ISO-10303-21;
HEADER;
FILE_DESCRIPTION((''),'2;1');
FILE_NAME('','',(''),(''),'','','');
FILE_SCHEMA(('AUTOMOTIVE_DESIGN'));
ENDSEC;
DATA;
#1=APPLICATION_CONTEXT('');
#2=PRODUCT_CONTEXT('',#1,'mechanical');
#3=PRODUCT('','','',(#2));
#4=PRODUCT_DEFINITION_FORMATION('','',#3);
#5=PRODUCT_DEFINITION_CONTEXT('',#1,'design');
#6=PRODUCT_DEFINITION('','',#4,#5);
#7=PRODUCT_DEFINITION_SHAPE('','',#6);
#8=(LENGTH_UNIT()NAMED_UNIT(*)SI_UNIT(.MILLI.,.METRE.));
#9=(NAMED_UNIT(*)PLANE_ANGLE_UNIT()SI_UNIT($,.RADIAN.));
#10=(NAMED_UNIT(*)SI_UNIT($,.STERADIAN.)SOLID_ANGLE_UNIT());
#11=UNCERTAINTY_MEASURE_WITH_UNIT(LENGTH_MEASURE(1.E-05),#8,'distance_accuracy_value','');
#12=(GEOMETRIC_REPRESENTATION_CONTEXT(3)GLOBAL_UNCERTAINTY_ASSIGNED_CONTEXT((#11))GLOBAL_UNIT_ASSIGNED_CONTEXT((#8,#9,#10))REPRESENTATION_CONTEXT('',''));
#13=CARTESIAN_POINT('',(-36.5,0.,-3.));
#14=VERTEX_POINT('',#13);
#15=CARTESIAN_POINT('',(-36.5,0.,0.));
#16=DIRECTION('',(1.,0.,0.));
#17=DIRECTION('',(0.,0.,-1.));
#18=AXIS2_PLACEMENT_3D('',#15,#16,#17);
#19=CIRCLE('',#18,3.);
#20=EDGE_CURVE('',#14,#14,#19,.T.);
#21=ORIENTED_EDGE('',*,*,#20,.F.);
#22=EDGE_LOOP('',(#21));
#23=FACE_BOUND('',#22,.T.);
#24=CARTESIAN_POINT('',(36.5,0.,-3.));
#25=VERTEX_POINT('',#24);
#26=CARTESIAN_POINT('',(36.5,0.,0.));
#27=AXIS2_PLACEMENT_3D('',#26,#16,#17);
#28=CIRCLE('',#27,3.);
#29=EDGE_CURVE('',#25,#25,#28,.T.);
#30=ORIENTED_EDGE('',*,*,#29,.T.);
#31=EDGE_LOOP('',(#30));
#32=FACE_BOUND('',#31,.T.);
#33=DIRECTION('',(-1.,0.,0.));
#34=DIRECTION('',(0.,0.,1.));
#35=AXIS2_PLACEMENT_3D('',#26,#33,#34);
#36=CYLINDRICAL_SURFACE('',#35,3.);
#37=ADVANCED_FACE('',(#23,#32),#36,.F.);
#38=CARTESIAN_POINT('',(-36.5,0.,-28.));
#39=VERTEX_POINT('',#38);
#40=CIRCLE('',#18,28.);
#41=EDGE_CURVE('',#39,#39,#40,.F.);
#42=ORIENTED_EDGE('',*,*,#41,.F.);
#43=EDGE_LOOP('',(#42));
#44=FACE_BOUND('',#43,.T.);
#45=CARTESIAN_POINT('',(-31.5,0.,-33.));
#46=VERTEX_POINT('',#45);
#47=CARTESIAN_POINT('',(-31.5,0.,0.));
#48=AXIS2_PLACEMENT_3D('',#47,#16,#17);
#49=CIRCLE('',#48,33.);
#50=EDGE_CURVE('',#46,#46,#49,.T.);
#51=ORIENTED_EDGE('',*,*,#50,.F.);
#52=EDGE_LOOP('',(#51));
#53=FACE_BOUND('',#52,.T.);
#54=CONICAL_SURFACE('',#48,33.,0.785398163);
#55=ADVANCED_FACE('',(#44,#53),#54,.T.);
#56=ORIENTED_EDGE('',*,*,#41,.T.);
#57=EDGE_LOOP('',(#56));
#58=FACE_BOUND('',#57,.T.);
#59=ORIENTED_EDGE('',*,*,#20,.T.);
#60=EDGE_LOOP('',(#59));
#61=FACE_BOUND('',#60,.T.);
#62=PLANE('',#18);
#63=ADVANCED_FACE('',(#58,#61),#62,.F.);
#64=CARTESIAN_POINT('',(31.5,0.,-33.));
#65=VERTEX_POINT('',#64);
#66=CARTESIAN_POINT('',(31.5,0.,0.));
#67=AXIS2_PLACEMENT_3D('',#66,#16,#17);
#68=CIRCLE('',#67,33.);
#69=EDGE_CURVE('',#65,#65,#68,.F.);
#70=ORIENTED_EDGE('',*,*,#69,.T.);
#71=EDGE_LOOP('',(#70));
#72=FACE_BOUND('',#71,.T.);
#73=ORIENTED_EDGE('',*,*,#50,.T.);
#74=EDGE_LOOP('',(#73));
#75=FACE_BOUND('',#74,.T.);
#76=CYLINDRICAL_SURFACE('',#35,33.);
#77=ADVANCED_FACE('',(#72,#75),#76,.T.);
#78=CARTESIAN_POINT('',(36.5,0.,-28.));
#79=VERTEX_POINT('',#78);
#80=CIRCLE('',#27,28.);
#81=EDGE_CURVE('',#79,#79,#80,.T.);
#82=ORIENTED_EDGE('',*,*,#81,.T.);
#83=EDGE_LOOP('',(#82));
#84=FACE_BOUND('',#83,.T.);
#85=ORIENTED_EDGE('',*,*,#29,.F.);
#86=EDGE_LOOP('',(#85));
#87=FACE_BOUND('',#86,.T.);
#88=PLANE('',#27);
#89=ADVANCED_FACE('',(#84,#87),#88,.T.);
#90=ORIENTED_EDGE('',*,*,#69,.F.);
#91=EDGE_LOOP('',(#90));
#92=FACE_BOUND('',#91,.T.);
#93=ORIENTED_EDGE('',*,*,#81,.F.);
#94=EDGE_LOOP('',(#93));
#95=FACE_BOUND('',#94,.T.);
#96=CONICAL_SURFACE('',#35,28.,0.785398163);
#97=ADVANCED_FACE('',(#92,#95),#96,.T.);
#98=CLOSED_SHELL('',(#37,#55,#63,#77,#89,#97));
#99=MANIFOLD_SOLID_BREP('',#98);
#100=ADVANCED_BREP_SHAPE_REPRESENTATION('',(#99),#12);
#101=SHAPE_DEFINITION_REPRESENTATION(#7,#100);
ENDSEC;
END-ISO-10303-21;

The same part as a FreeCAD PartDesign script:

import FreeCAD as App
import Part
import Sketcher

V = App.Vector


def edges_at(feature, points):
    """Names of the edges that pass closest to the given points."""
    edges = feature.Shape.Edges
    near = lambda p: min(range(len(edges)), key=lambda i: edges[i].distToShape(Part.Vertex(*p))[0])
    return sorted({f"Edge{near(p) + 1}" for p in points})

doc = App.newDocument("Part")
params = doc.addObject("Spreadsheet::Sheet", "Params")
for row, (alias, value) in enumerate([
    ("sketch1_diameter", "66 mm"),
    ("sketch1_diameter2", "6 mm"),
    ("pad1_length", "73 mm"),
    ("chamfer_size", "5 mm"),
], start=1):
    params.set(f"A{row}", alias)
    params.set(f"B{row}", "=" + value)
    params.setAlias(f"B{row}", alias)

body = doc.addObject("PartDesign::Body", "Body")

sketch1 = body.newObject("Sketcher::SketchObject", "Sketch")
sketch1.AttachmentSupport = (doc.getObject("YZ_Plane"), [""])
sketch1.MapMode = "FlatFace"
sketch1.addGeometry(Part.Circle(V(0, 0, 0), V(0, 0, 1), 33), False)
sketch1.addGeometry(Part.Circle(V(0, 0, 0), V(0, 0, 1), 3), False)
sketch1.addConstraint(Sketcher.Constraint("Coincident", 0, 3, -1, 1))
sketch1.addConstraint(Sketcher.Constraint("Coincident", 1, 3, -1, 1))
sketch1.addConstraint(Sketcher.Constraint("Diameter", 0, 66.0))
sketch1.addConstraint(Sketcher.Constraint("Diameter", 1, 6.0))
sketch1.setExpression("Constraints[2]", "Params.sketch1_diameter")
sketch1.setExpression("Constraints[3]", "Params.sketch1_diameter2")
pad1 = body.newObject("PartDesign::Pad", "Pad")
pad1.Profile = sketch1
pad1.setExpression("Length", "Params.pad1_length")
pad1.Midplane = True
doc.recompute()

chamfer = body.newObject("PartDesign::Chamfer", "Chamfer")
chamfer.Base = (pad1, edges_at(pad1, [(-36.5, 0, 33), (36.5, 0, 33)]))
chamfer.setExpression("Size", "Params.chamfer_size")

doc.recompute()
